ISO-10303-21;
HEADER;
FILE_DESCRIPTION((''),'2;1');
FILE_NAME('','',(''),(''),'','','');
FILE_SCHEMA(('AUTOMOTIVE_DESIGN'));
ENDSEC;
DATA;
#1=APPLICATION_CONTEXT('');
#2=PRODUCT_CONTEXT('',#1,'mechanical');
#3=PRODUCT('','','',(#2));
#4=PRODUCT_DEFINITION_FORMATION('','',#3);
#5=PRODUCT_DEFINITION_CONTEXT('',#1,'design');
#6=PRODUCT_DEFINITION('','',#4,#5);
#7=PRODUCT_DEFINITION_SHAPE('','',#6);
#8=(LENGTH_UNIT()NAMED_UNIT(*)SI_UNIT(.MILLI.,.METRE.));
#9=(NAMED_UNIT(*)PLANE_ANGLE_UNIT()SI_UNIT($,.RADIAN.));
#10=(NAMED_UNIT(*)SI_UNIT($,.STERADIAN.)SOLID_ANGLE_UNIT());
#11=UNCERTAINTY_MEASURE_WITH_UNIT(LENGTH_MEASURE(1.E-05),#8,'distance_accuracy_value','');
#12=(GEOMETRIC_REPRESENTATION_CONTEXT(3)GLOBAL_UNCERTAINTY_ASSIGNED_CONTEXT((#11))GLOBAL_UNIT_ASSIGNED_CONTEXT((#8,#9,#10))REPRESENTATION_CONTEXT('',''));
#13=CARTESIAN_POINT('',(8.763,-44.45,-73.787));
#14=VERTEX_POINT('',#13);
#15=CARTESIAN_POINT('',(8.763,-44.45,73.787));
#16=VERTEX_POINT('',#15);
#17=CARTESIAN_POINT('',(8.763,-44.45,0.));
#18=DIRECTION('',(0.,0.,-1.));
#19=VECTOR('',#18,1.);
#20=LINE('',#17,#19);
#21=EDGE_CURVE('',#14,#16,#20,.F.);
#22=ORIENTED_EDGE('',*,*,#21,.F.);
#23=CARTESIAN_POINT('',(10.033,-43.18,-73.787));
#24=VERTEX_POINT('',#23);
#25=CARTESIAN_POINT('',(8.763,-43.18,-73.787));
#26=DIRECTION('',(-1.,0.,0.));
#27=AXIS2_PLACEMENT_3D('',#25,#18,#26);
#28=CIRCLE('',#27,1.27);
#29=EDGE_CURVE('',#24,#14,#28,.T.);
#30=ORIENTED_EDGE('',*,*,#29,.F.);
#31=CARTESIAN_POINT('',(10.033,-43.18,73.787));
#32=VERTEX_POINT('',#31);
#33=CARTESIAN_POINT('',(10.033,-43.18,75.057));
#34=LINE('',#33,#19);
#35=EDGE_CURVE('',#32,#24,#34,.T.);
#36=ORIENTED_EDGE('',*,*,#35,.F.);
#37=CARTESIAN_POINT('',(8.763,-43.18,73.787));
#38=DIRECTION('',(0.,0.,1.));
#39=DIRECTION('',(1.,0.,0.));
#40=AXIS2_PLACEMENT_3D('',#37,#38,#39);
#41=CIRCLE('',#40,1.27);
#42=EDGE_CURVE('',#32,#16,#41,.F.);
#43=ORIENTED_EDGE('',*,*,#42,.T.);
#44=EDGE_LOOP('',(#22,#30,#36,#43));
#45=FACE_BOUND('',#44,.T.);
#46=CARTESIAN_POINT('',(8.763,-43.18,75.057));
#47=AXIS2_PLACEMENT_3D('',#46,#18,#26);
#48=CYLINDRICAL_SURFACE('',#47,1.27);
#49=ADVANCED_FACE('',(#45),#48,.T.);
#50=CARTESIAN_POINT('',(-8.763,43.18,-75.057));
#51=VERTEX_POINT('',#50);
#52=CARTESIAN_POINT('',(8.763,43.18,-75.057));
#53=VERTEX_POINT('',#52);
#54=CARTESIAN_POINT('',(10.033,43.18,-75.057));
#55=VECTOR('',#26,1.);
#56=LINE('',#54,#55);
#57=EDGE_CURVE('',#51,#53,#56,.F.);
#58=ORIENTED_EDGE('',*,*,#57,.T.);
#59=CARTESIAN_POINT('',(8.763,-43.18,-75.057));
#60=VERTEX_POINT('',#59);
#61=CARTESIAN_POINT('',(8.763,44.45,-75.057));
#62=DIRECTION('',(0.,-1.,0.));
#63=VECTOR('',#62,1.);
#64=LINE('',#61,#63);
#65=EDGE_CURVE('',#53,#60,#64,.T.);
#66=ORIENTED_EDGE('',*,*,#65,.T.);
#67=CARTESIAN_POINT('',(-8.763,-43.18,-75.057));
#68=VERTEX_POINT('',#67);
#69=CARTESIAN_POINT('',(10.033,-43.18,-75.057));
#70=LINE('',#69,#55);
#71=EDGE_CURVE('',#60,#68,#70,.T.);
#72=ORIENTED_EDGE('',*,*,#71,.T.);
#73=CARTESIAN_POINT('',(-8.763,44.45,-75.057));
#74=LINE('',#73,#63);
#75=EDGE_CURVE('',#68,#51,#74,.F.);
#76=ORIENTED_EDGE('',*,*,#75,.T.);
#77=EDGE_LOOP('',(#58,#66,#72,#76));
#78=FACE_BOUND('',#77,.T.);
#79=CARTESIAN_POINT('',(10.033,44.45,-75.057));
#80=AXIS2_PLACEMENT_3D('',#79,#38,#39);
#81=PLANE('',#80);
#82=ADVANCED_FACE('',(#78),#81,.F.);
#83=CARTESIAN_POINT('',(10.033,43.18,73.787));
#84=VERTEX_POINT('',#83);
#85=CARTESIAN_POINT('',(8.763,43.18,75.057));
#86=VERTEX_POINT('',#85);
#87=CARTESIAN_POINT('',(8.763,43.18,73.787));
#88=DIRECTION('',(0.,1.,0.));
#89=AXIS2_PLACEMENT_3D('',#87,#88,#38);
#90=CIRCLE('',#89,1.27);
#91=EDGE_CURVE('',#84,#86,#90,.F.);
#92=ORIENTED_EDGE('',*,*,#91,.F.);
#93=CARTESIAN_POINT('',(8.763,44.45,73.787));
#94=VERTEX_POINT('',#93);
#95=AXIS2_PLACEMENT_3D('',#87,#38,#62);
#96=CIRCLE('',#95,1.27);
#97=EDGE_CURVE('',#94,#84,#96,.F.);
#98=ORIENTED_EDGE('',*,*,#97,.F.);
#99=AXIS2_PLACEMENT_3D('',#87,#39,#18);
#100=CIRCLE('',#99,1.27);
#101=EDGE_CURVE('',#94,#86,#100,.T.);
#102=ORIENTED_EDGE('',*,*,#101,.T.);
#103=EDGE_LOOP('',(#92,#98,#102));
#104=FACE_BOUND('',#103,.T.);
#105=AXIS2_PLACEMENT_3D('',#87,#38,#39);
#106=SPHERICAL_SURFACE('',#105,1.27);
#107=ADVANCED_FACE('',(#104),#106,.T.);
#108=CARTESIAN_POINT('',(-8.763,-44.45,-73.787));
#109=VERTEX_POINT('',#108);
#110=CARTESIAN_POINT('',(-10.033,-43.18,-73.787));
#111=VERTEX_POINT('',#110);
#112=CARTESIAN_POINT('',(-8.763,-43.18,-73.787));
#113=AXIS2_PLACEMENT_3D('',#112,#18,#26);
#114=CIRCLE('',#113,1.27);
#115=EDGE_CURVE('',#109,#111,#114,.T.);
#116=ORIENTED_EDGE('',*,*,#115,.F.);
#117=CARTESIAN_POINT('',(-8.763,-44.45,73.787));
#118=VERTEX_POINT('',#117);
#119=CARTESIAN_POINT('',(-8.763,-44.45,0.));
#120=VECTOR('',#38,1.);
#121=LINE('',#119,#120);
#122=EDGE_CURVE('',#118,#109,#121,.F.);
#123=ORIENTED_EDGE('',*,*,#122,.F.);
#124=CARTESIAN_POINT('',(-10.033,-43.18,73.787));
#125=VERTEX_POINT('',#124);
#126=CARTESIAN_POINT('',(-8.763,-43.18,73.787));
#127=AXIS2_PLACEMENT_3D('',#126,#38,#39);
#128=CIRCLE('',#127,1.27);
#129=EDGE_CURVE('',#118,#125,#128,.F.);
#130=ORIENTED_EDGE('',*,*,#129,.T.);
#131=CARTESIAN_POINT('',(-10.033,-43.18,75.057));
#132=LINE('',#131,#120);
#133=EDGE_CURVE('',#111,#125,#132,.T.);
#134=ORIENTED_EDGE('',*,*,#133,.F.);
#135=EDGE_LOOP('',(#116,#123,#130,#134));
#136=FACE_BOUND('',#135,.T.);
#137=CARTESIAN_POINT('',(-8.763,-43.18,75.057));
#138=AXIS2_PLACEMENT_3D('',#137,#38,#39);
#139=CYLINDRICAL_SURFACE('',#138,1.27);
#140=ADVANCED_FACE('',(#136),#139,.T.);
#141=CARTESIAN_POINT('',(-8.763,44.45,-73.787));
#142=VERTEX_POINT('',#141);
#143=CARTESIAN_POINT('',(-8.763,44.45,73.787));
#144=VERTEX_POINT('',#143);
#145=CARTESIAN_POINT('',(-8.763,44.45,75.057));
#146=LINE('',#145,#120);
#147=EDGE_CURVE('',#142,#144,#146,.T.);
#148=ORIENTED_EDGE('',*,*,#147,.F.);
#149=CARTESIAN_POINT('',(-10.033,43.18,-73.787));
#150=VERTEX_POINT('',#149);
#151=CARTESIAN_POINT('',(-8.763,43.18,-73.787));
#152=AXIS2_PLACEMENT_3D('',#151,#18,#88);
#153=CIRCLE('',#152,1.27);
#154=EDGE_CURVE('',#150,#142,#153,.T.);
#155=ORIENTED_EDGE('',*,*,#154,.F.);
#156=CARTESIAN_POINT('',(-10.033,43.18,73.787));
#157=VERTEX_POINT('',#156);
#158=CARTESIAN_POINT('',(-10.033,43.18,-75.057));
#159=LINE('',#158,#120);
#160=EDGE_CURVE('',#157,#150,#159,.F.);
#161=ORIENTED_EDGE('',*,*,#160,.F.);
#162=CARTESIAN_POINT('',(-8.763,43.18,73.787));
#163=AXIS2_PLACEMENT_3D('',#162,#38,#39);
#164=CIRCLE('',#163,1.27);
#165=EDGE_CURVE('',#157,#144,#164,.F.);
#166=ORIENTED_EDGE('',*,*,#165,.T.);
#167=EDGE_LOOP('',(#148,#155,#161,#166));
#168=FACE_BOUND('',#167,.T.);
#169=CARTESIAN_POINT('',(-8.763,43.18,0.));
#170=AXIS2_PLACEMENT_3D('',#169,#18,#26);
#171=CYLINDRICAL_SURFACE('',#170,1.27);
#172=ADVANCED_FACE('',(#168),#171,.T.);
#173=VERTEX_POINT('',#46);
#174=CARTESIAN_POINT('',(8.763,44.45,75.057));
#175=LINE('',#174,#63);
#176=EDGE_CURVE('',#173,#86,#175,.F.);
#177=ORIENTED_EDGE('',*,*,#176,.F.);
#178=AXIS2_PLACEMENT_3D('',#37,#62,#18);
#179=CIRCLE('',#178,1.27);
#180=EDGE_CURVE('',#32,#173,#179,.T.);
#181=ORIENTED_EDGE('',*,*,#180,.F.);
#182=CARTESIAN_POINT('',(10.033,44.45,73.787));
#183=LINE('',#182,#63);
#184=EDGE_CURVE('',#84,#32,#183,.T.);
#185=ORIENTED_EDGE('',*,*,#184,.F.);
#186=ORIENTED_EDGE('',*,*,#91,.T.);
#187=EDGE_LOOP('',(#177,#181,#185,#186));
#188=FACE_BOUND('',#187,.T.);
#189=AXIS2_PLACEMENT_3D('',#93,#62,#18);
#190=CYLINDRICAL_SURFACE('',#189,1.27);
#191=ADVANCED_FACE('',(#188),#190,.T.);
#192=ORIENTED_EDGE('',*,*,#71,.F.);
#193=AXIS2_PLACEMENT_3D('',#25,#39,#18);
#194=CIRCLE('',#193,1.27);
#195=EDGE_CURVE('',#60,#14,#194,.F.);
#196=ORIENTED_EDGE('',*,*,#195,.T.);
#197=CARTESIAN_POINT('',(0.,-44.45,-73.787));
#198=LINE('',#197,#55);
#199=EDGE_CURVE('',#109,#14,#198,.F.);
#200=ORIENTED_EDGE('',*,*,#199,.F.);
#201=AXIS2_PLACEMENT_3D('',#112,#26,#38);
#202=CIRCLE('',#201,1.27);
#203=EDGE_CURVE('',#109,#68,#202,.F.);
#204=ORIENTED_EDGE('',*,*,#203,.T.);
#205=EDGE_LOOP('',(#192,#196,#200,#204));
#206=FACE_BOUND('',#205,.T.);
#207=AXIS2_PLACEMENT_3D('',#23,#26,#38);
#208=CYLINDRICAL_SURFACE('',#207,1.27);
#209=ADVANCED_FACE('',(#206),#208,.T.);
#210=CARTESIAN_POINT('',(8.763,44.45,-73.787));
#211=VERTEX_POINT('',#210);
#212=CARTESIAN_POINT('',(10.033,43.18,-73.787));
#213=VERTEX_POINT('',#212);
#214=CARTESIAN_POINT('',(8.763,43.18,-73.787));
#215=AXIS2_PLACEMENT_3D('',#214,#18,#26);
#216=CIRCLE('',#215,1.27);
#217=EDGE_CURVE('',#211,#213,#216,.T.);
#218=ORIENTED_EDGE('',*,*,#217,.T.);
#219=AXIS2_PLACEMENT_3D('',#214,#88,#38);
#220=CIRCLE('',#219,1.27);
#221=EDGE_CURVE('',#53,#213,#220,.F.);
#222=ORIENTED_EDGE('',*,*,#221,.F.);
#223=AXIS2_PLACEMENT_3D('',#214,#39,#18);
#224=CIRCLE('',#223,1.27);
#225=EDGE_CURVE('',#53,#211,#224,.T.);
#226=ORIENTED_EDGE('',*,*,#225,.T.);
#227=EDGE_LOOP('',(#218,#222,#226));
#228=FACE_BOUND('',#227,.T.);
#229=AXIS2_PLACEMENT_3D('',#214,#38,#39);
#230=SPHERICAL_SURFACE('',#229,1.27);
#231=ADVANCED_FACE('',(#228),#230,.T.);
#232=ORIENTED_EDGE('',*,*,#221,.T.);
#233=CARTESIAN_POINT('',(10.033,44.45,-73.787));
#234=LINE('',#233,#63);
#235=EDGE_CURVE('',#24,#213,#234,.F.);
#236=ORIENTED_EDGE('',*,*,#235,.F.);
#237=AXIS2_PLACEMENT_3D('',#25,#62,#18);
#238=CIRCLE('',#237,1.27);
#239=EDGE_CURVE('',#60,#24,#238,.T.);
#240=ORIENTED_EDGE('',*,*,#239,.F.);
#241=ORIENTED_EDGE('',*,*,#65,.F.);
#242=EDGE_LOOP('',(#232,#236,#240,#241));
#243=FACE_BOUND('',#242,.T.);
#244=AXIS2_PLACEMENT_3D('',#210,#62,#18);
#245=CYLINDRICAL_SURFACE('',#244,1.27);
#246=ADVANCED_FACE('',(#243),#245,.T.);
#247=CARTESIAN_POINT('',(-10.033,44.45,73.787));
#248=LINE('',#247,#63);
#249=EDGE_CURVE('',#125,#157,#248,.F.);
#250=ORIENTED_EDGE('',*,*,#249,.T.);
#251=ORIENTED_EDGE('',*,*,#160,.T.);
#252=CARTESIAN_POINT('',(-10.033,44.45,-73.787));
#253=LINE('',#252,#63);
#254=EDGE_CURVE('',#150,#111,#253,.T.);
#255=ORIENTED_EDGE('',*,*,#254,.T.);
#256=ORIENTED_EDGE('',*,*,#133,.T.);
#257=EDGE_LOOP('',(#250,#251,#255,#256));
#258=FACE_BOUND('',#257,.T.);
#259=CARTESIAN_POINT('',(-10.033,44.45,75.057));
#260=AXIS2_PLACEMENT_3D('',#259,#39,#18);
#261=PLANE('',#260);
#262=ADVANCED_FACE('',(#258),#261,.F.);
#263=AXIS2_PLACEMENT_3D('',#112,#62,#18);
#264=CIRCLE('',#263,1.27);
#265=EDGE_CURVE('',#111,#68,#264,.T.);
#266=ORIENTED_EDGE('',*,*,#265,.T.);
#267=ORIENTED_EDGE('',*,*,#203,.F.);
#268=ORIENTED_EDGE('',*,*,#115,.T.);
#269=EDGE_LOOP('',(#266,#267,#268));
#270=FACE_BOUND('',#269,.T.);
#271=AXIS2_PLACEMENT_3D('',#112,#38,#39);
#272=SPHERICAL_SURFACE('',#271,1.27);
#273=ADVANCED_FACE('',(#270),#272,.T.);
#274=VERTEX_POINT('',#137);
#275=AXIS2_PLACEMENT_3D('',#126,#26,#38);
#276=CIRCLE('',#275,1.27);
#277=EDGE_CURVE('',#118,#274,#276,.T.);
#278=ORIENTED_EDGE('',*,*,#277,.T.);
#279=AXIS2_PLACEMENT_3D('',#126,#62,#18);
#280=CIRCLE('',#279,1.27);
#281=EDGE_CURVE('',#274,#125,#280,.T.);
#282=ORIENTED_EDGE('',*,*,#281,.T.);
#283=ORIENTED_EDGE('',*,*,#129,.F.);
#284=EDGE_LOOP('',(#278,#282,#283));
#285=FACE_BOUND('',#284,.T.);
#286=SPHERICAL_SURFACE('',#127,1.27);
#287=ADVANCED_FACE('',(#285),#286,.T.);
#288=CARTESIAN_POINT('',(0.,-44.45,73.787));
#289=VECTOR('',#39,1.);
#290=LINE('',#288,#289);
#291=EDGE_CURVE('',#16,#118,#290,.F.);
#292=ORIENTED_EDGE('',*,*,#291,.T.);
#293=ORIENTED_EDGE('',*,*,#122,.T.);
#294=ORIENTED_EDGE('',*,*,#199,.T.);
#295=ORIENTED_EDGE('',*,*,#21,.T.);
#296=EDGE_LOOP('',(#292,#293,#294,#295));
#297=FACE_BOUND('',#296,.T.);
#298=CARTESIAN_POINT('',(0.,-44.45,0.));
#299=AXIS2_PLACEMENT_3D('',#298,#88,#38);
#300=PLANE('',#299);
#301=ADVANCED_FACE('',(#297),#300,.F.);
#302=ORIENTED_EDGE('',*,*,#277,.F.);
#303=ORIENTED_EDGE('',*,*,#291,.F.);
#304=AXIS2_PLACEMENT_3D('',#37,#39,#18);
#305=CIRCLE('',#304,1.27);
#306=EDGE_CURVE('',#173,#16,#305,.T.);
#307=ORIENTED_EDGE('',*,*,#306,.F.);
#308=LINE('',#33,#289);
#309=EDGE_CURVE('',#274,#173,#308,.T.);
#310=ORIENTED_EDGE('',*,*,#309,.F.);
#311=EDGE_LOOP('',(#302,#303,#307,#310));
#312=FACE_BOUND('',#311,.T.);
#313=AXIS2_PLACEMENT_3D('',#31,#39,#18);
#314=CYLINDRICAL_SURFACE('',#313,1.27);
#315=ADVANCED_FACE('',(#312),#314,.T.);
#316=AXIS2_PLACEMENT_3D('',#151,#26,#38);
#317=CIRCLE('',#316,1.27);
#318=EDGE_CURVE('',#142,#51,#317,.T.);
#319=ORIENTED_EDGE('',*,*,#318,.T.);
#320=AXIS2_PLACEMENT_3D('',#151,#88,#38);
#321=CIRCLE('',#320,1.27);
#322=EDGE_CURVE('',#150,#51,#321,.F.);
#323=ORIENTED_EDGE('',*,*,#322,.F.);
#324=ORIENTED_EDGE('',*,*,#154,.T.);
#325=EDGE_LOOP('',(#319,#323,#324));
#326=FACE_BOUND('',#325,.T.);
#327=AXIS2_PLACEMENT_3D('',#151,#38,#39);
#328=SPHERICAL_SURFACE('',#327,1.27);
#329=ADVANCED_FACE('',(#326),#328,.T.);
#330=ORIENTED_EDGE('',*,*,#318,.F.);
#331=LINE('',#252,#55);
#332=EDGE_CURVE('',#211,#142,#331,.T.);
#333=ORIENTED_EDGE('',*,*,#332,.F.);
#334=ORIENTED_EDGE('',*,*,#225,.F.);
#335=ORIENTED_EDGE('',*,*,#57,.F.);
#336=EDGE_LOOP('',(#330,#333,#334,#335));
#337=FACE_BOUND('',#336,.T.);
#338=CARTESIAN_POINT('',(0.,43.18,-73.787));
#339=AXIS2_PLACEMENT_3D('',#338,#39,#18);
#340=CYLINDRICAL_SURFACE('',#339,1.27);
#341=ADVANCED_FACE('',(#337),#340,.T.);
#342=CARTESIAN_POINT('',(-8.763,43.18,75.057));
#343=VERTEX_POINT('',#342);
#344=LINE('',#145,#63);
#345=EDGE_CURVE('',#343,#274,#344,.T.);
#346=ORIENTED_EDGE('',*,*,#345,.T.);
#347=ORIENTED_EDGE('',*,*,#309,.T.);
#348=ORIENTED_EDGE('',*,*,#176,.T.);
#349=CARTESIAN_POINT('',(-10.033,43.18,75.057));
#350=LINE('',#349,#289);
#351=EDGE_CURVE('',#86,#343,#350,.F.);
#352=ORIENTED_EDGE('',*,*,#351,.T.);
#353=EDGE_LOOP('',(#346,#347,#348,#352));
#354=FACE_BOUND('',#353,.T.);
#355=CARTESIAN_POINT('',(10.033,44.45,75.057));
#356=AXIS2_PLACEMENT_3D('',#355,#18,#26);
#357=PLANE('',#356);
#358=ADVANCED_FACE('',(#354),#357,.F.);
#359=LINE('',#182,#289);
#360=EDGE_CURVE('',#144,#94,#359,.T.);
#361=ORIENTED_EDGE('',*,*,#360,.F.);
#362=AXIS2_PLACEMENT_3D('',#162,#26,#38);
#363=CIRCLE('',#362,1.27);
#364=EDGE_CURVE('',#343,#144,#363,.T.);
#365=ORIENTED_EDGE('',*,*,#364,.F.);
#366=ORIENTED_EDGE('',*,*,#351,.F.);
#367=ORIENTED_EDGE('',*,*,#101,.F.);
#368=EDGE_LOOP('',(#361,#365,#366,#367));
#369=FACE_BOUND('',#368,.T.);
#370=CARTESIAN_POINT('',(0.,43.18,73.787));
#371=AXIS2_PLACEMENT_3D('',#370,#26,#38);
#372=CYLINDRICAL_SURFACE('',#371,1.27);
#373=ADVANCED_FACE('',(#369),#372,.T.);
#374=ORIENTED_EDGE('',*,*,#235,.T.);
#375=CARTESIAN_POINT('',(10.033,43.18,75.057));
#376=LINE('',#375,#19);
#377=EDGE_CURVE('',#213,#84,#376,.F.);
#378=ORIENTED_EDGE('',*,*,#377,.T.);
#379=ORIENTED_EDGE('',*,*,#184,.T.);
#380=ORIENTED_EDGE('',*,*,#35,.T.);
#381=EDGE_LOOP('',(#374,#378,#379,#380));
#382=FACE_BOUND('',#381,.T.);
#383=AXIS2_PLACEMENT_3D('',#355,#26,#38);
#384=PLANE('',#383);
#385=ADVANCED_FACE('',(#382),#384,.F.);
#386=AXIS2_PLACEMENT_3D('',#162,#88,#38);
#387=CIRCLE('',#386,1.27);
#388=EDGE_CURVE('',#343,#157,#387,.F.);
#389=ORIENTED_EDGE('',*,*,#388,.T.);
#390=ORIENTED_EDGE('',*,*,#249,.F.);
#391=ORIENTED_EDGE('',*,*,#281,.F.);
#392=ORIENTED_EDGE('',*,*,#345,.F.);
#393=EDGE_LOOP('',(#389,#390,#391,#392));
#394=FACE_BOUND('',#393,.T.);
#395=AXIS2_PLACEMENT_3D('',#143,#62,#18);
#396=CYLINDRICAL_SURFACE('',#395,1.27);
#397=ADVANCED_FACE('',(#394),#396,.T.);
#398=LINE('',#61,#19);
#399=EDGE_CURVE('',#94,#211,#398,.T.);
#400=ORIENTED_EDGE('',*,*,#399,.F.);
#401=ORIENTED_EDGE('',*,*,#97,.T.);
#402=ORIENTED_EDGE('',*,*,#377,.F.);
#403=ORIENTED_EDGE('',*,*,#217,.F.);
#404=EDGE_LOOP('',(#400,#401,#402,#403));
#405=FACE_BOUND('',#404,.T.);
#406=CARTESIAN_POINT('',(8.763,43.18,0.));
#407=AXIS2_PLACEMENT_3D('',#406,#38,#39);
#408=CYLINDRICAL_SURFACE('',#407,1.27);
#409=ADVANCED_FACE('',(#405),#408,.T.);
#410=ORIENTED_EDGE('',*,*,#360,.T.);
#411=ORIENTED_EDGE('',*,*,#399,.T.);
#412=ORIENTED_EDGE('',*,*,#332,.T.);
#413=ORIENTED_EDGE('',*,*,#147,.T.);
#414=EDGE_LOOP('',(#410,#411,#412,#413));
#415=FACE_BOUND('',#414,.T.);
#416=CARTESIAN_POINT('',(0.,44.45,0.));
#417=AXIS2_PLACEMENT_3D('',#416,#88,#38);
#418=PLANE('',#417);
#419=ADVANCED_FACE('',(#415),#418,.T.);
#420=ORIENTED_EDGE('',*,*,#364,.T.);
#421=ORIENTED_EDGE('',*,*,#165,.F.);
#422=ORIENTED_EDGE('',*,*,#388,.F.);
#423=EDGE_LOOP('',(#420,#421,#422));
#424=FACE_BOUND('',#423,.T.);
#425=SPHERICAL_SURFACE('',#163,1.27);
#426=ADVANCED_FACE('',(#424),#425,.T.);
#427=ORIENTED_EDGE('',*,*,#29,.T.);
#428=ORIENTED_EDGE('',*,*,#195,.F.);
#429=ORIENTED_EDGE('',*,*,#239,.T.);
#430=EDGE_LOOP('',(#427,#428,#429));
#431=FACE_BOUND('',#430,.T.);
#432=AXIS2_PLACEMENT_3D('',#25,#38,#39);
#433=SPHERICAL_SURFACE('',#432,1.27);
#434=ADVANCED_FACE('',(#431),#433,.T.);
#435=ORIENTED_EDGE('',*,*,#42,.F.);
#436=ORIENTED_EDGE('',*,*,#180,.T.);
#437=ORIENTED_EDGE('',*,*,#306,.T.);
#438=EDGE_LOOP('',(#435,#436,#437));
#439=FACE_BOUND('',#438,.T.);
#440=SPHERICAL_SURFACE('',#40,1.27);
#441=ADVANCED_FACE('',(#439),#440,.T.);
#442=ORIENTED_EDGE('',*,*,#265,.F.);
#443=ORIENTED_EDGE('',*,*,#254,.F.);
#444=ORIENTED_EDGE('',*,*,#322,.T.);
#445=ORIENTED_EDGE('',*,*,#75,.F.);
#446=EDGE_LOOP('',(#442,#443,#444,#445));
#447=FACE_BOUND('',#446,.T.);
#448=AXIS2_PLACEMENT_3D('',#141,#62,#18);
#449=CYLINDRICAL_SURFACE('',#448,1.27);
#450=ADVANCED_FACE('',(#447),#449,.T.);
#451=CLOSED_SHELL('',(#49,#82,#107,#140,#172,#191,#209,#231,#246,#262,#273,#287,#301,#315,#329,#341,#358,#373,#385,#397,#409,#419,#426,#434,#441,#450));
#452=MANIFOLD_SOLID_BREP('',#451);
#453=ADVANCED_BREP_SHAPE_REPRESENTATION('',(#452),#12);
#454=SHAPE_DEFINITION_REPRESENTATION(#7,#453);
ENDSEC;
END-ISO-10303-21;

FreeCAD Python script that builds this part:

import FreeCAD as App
import Part
import Sketcher

V = App.Vector
Q = App.Units.Quantity

doc = App.newDocument("Part")
body = doc.addObject("PartDesign::Body", "Body")

sketch1 = body.newObject("Sketcher::SketchObject", "Sketch")
sketch1.AttachmentSupport = (doc.getObject("XZ_Plane"), [""])
sketch1.MapMode = "FlatFace"
sketch1.addGeometry([
    Part.LineSegment(V(-10.033, -75.057, 0), V(-10.033, 75.057, 0)),
    Part.LineSegment(V(-10.033, 75.057, 0), V(10.033, 75.057, 0)),
    Part.LineSegment(V(10.033, 75.057, 0), V(10.033, -75.057, 0)),
    Part.LineSegment(V(10.033, -75.057, 0), V(-10.033, -75.057, 0)),
], False)
sketch1.addConstraint([
    Sketcher.Constraint("Coincident", 0, 2, 1, 1),
    Sketcher.Constraint("Coincident", 1, 2, 2, 1),
    Sketcher.Constraint("Coincident", 2, 2, 3, 1),
    Sketcher.Constraint("Coincident", 3, 2, 0, 1),
    Sketcher.Constraint("Vertical", 0),
    Sketcher.Constraint("Horizontal", 1),
    Sketcher.Constraint("Vertical", 2),
    Sketcher.Constraint("Horizontal", 3),
    Sketcher.Constraint("Symmetric", 0, 2, 2, 2, -1, 1),
    Sketcher.Constraint("DistanceX", 1, 1, 1, 2, Q("0.79 in")),
    Sketcher.Constraint("DistanceY", 0, 1, 0, 2, Q("5.91 in")),
])
pad1 = body.newObject("PartDesign::Pad", "Pad")
pad1.Profile = sketch1
pad1.Length = Q("3.5 in")
pad1.Midplane = True
doc.recompute()

fillet = body.newObject("PartDesign::Fillet", "Fillet")
fillet.Base = (pad1, ["Edge1"])
fillet.UseAllEdges = True
fillet.Radius = Q("0.05 in")

doc.recompute()
